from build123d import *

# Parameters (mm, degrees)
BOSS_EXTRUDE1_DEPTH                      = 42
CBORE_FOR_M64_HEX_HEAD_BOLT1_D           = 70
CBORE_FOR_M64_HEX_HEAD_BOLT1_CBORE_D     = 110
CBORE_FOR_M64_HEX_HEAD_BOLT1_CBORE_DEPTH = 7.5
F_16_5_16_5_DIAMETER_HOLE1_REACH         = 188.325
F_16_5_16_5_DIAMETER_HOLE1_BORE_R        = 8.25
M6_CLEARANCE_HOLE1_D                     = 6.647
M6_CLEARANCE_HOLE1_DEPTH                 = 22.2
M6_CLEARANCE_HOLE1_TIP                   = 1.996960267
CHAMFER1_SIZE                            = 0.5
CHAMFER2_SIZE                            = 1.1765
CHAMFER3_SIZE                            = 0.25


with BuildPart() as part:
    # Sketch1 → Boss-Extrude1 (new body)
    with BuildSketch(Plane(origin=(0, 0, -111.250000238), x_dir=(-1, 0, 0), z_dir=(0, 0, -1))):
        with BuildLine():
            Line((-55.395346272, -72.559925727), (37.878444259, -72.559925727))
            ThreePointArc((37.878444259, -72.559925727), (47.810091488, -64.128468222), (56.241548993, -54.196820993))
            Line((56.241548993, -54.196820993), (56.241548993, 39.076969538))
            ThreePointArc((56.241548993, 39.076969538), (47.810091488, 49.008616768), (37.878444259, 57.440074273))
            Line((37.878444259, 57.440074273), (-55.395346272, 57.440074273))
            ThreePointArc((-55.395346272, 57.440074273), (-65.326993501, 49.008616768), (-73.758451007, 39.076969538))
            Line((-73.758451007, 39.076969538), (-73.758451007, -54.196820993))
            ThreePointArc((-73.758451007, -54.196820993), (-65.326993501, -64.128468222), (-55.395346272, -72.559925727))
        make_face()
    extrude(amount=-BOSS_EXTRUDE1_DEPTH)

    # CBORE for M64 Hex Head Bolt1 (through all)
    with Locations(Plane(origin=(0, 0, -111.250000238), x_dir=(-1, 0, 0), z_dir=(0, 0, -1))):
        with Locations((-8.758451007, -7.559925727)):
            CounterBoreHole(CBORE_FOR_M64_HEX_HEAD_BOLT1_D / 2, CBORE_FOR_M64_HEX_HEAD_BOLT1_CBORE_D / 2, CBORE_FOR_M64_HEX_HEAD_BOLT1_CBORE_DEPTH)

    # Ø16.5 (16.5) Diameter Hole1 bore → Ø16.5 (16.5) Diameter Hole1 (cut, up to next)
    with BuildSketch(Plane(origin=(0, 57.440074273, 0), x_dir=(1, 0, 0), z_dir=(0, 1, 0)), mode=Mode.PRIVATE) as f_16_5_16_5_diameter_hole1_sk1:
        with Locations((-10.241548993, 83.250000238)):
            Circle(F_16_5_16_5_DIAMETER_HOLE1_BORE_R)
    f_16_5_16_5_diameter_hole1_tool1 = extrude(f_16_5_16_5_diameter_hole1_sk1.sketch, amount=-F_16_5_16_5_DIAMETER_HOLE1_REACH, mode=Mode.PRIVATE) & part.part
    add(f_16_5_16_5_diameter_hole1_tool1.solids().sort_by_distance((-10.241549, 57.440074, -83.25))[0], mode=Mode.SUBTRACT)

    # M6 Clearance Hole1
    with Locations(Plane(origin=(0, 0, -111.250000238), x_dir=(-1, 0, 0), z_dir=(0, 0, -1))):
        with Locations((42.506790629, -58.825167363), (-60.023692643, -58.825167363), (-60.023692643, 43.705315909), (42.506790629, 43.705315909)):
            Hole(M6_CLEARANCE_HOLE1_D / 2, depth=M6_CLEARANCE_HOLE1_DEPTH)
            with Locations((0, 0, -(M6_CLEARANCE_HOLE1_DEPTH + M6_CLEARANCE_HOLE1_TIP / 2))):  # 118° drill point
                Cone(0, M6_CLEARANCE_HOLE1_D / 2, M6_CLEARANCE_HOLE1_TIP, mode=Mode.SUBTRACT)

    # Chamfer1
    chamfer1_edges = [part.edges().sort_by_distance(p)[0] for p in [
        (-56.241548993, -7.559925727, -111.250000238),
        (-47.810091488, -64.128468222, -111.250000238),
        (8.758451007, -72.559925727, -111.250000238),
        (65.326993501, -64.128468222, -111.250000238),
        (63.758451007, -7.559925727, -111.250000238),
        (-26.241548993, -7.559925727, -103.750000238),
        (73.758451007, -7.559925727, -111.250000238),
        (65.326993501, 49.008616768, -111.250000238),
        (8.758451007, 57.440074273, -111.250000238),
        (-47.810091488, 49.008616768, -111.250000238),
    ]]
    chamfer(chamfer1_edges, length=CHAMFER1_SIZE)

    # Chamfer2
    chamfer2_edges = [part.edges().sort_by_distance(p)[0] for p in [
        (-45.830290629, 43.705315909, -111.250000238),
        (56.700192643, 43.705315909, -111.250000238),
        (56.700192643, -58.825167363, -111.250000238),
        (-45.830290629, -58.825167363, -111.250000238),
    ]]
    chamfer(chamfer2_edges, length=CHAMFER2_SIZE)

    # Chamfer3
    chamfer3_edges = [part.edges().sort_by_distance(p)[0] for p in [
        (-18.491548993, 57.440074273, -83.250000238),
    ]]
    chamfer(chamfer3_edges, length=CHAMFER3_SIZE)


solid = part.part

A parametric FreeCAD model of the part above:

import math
import FreeCAD as App
import Part
import Sketcher

V = App.Vector
Q = App.Units.Quantity


def edges_at(feature, points):
    """Names of the edges that pass closest to the given points."""
    edges = feature.Shape.Edges
    near = lambda p: min(range(len(edges)), key=lambda i: edges[i].distToShape(Part.Vertex(*p))[0])
    return sorted({f"Edge{near(p) + 1}" for p in points})

doc = App.newDocument("Part")
body = doc.addObject("PartDesign::Body", "Body")

# Sketch on XY plane
sketch1 = body.newObject("Sketcher::SketchObject", "Sketch")
sketch1.AttachmentSupport = (doc.getObject("XY_Plane"), [""])
sketch1.MapMode = "FlatFace"
sketch1.AttachmentOffset = App.Placement(V(0, 0, -111.25), App.Rotation())
sketch1.addGeometry([
    Part.LineSegment(V(55, -73, 0), V(-38, -73, 0)),  # 0
    Part.ArcOfCircle(Part.Circle(V(9, -8, 0), V(0, 0, 1), 80), math.radians(-144.34), math.radians(-125.66)),  # 1
    Part.LineSegment(V(-56, -54, 0), V(-56, 39, 0)),  # 2
    Part.ArcOfCircle(Part.Circle(V(9, -8, 0), V(0, 0, 1), 80), math.radians(125.66), math.radians(144.34)),  # 3
    Part.LineSegment(V(-38, 57, 0), V(55, 57, 0)),  # 4
    Part.ArcOfCircle(Part.Circle(V(9, -8, 0), V(0, 0, 1), 80), math.radians(35.66), math.radians(54.34)),  # 5
    Part.LineSegment(V(74, 39, 0), V(74, -54, 0)),  # 6
    Part.ArcOfCircle(Part.Circle(V(9, -8, 0), V(0, 0, 1), 80), math.radians(-54.34), math.radians(-35.66)),  # 7
], False)
sketch1.addConstraint([
    Sketcher.Constraint("Coincident", 0, 2, 1, 2),
    Sketcher.Constraint("Coincident", 1, 1, 2, 1),
    Sketcher.Constraint("Coincident", 2, 2, 3, 2),
    Sketcher.Constraint("Coincident", 3, 1, 4, 1),
    Sketcher.Constraint("Coincident", 4, 2, 5, 2),
    Sketcher.Constraint("Coincident", 5, 1, 6, 1),
    Sketcher.Constraint("Coincident", 6, 2, 7, 2),
    Sketcher.Constraint("Coincident", 7, 1, 0, 1),
    Sketcher.Constraint("Horizontal", 0),
    Sketcher.Constraint("Vertical", 2),
    Sketcher.Constraint("Horizontal", 4),
    Sketcher.Constraint("Vertical", 6),
    Sketcher.Constraint("Coincident", 3, 3, 1, 3),
    Sketcher.Constraint("Coincident", 5, 3, 1, 3),
    Sketcher.Constraint("Coincident", 7, 3, 1, 3),
    Sketcher.Constraint("Equal", 1, 3),
    Sketcher.Constraint("Equal", 3, 5),
    Sketcher.Constraint("Equal", 5, 7),
    Sketcher.Constraint("Horizontal", 2, 2, 5, 1),
    Sketcher.Constraint("Vertical", 0, 2, 3, 1),
    Sketcher.Constraint("Equal", 4, 2),
    Sketcher.Constraint("Radius", 1, Q("80 mm")),
    Sketcher.Constraint("DistanceY", 0, 2, 5, 3, Q("65 mm")),
    Sketcher.Constraint("DistanceX", -1, 1, 1, 3, Q("8.758451 mm")),
    Sketcher.Constraint("DistanceY", 1, 1, -1, 1, Q("54.196821 mm")),
])
pad1 = body.newObject("PartDesign::Pad", "Pad")
pad1.Profile = sketch1
pad1.Length = 42

# Sketch on XY plane
sketch2 = body.newObject("Sketcher::SketchObject", "Sketch001")
sketch2.AttachmentSupport = (doc.getObject("XY_Plane"), [""])
sketch2.MapMode = "FlatFace"
sketch2.AttachmentOffset = App.Placement(V(0, 0, -111.25), App.Rotation())
sketch2.addGeometry(Part.Circle(V(9, -8, 0), V(0, 0, 1), 35), False)
sketch2.addConstraint([
    Sketcher.Constraint("Diameter", 0, Q("70 mm")),
    Sketcher.Constraint("DistanceX", -1, 1, 0, 3, Q("8.758451 mm")),
    Sketcher.Constraint("DistanceY", 0, 3, -1, 1, Q("7.559926 mm")),
])
doc.recompute()
hole = body.newObject("PartDesign::Hole", "Hole")
hole.Profile = sketch2
hole.ThreadType = "None"
hole.Diameter = 70
hole.DepthType = "ThroughAll"
hole.HoleCutType = "Counterbore"
hole.HoleCutDiameter = 110
hole.HoleCutDepth = 7.5
hole.Reversed = True

# Sketch on XZ plane
sketch3 = body.newObject("Sketcher::SketchObject", "Sketch002")
sketch3.AttachmentSupport = (doc.getObject("XZ_Plane"), [""])
sketch3.MapMode = "FlatFace"
sketch3.AttachmentOffset = App.Placement(V(0, 0, -57.440074), App.Rotation())
sketch3.addGeometry(Part.Circle(V(-10, -83, 0), V(0, 0, 1), 8), False)
sketch3.addConstraint([
    Sketcher.Constraint("Diameter", 0, Q("16.5 mm")),
    Sketcher.Constraint("DistanceY", 0, 3, -1, 1, Q("83.25 mm")),
    Sketcher.Constraint("DistanceX", 0, 3, -1, 1, Q("10.241549 mm")),
])
pocket1 = body.newObject("PartDesign::Pocket", "Pocket")
pocket1.Profile = sketch3
pocket1.Type = "UpToFirst"
pocket1.Reversed = True

# Sketch on XY plane
sketch4 = body.newObject("Sketcher::SketchObject", "Sketch003")
sketch4.AttachmentSupport = (doc.getObject("XY_Plane"), [""])
sketch4.MapMode = "FlatFace"
sketch4.AttachmentOffset = App.Placement(V(0, 0, -111.25), App.Rotation())
sketch4.addGeometry([
    Part.Circle(V(-42.5, -58.8, 0), V(0, 0, 1), 3.3),
    Part.Circle(V(60, -58.8, 0), V(0, 0, 1), 3.3),
    Part.Circle(V(60, 43.7, 0), V(0, 0, 1), 3.3),
    Part.Circle(V(-42.5, 43.7, 0), V(0, 0, 1), 3.3),
], False)
sketch4.addConstraint([
    Sketcher.Constraint("Equal", 0, 1),
    Sketcher.Constraint("Equal", 1, 2),
    Sketcher.Constraint("Equal", 2, 3),
    Sketcher.Constraint("Horizontal", 0, 3, 1, 3),
    Sketcher.Constraint("Horizontal", 2, 3, 3, 3),
    Sketcher.Constraint("Vertical", 1, 3, 2, 3),
    Sketcher.Constraint("Vertical", 0, 3, 3, 3),
    Sketcher.Constraint("Diameter", 0, Q("6.647 mm")),
    Sketcher.Constraint("DistanceX", 0, 3, -1, 1, Q("42.506791 mm")),
    Sketcher.Constraint("DistanceY", 0, 3, -1, 1, Q("58.825167 mm")),
    Sketcher.Constraint("DistanceX", -1, 1, 1, 3, Q("60.023693 mm")),
    Sketcher.Constraint("DistanceY", -1, 1, 2, 3, Q("43.705316 mm")),
])
doc.recompute()
hole2 = body.newObject("PartDesign::Hole", "Hole001")
hole2.Profile = sketch4
hole2.ThreadType = "None"
hole2.Diameter = 6.647
hole2.DepthType = "Dimension"
hole2.Depth = 22.2
hole2.DrillPoint = "Angled"
hole2.DrillPointAngle = 118
hole2.Reversed = True
doc.recompute()

chamfer = body.newObject("PartDesign::Chamfer", "Chamfer")
chamfer.Base = (hole2, edges_at(hole2, [
    (-56.242, -7.56, -111.25),
    (-47.81, -64.128, -111.25),
    (8.758, -72.56, -111.25),
    (65.327, -64.128, -111.25),
    (63.758, -7.56, -111.25),
    (-26.242, -7.56, -103.75),
    (73.758, -7.56, -111.25),
    (65.327, 49.009, -111.25),
    (8.758, 57.44, -111.25),
    (-47.81, 49.009, -111.25),
]))
chamfer.Size = 0.5
doc.recompute()

chamfer2 = body.newObject("PartDesign::Chamfer", "Chamfer001")
chamfer2.Base = (chamfer, edges_at(chamfer, [
    (-45.83, 43.705, -111.25),
    (56.7, 43.705, -111.25),
    (56.7, -58.825, -111.25),
    (-45.83, -58.825, -111.25),
]))
chamfer2.Size = 1.1765
doc.recompute()

chamfer3 = body.newObject("PartDesign::Chamfer", "Chamfer002")
chamfer3.Base = (chamfer2, edges_at(chamfer2, [(-18.492, 57.44, -83.25)]))
chamfer3.Size = 0.25

doc.recompute()
